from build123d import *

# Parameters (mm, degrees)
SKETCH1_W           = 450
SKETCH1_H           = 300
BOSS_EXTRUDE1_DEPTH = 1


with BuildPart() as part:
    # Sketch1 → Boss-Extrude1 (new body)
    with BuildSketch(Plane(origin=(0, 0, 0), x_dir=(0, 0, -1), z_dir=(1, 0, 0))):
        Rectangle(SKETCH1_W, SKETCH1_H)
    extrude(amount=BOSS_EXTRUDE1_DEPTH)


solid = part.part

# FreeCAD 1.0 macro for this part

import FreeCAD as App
import Part
import Sketcher

V = App.Vector
Q = App.Units.Quantity


def add_polygon(sketch, points):
    """Adds a closed chain of lines whose ends are joined by coincident constraints."""
    first, n = sketch.GeometryCount, len(points)
    for a, b in zip(points, points[1:] + points[:1]):
        sketch.addGeometry(Part.LineSegment(App.Vector(*a, 0), App.Vector(*b, 0)), False)
    for i in range(n):
        sketch.addConstraint(Sketcher.Constraint("Coincident", first + i, 2, first + (i + 1) % n, 1))

doc = App.newDocument("Part")
body = doc.addObject("PartDesign::Body", "Body")

# Sketch on YZ plane
sketch1 = body.newObject("Sketcher::SketchObject", "Sketch")
sketch1.AttachmentSupport = (doc.getObject("YZ_Plane"), [""])
sketch1.MapMode = "FlatFace"
add_polygon(sketch1, [(150, 225), (-150, 225), (-150, -225), (150, -225)])  # lines 0-3
sketch1.addConstraint(Sketcher.Constraint("Horizontal", 0))
sketch1.addConstraint(Sketcher.Constraint("Vertical", 1))
sketch1.addConstraint(Sketcher.Constraint("Horizontal", 2))
sketch1.addConstraint(Sketcher.Constraint("Vertical", 3))
sketch1.addConstraint(Sketcher.Constraint("Symmetric", 0, 2, 2, 2, -1, 1))
sketch1.addConstraint(Sketcher.Constraint("DistanceX", 0, 2, 0, 1, Q("300 mm")))
sketch1.addConstraint(Sketcher.Constraint("DistanceY", 1, 2, 1, 1, Q("450 mm")))
pad1 = body.newObject("PartDesign::Pad", "Pad")
pad1.Profile = sketch1
pad1.Length = 1

doc.recompute()
